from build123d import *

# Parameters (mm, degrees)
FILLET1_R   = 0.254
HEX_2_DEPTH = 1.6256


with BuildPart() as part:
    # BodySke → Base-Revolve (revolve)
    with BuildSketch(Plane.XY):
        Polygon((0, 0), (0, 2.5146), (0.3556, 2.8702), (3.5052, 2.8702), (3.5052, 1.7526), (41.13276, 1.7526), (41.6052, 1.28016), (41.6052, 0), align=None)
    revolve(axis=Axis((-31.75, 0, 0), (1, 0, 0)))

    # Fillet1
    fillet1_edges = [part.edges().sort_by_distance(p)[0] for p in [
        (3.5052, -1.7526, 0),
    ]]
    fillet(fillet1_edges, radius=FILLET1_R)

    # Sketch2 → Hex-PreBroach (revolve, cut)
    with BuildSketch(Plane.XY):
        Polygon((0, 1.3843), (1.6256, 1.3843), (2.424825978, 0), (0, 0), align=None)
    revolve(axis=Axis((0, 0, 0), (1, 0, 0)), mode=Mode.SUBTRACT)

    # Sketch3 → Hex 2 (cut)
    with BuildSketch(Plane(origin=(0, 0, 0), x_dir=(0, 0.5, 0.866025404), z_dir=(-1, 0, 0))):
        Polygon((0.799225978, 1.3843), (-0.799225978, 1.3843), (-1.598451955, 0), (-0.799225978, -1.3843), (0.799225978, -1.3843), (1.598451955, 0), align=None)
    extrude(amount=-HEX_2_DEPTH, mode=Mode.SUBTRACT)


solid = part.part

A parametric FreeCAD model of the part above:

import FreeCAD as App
import Part
import Sketcher

V = App.Vector
Q = App.Units.Quantity


def edges_at(feature, points):
    """Names of the edges that pass closest to the given points."""
    edges = feature.Shape.Edges
    near = lambda p: min(range(len(edges)), key=lambda i: edges[i].distToShape(Part.Vertex(*p))[0])
    return sorted({f"Edge{near(p) + 1}" for p in points})


def add_polygon(sketch, points):
    """Adds a closed chain of lines whose ends are joined by coincident constraints."""
    first, n = sketch.GeometryCount, len(points)
    for a, b in zip(points, points[1:] + points[:1]):
        sketch.addGeometry(Part.LineSegment(App.Vector(*a, 0), App.Vector(*b, 0)), False)
    for i in range(n):
        sketch.addConstraint(Sketcher.Constraint("Coincident", first + i, 2, first + (i + 1) % n, 1))

doc = App.newDocument("Part")
params = doc.addObject("Spreadsheet::Sheet", "Params")
for row, (alias, value) in enumerate([
    ("sketch1_width", "1.638 in"),
    ("sketch1_width2", "0.124 in"),
    ("sketch1_height", "0.099 in"),
    ("sketch1_height2", "0.044 in"),
    ("revolution_angle", "360 deg"),
    ("fillet_radius", "0.01 in"),
    ("sketch2_width", "0.064 in"),
    ("groove_angle", "360 deg"),
    ("pocket1_length", "0.064 in"),
], start=1):
    params.set(f"A{row}", alias)
    params.set(f"B{row}", "=" + value)
    params.setAlias(f"B{row}", alias)

body = doc.addObject("PartDesign::Body", "Body")

# Sketch on XY plane
sketch1 = body.newObject("Sketcher::SketchObject", "Sketch")
sketch1.AttachmentSupport = (doc.getObject("XY_Plane"), [""])
sketch1.MapMode = "FlatFace"
add_polygon(sketch1, [(0, 2.5), (0, 0), (41.6, 0), (41.6, 1.3), (41.1, 1.8), (3.5, 1.8), (3.5, 2.9), (0.4, 2.9)])  # lines 0-7
sketch1.addConstraint([
    Sketcher.Constraint("Vertical", 0),
    Sketcher.Constraint("Horizontal", 1),
    Sketcher.Constraint("Vertical", 2),
    Sketcher.Constraint("Horizontal", 4),
    Sketcher.Constraint("Vertical", 5),
    Sketcher.Constraint("Horizontal", 6),
    Sketcher.Constraint("Coincident", 0, 2, -1, 1),
    Sketcher.Constraint("Perpendicular", 3, 7),
    Sketcher.Constraint("Angle", 3, Q("135 deg")),
    Sketcher.Constraint("DistanceX", 4, 2, 2, 2, Q("1.5 in")),
    Sketcher.Constraint("DistanceX", 1, 1, 1, 2, Q("1.638 in")),
    Sketcher.Constraint("DistanceX", 6, 2, 6, 1, Q("0.124 in")),
    Sketcher.Constraint("DistanceY", 0, 2, 0, 1, Q("0.099 in")),
    Sketcher.Constraint("DistanceY", 5, 1, 5, 2, Q("0.044 in")),
    Sketcher.Constraint("DistanceX", 4, 2, 4, 1, Q("1.4814 in")),
])
sketch1.setExpression("Constraints[18]", "Params.sketch1_width")
sketch1.setExpression("Constraints[19]", "Params.sketch1_width2")
sketch1.setExpression("Constraints[20]", "Params.sketch1_height")
sketch1.setExpression("Constraints[21]", "Params.sketch1_height2")
revolution = body.newObject("PartDesign::Revolution", "Revolution")
revolution.Profile = sketch1
revolution.ReferenceAxis = (sketch1, ["H_Axis"])
revolution.setExpression("Angle", "Params.revolution_angle")
doc.recompute()

fillet = body.newObject("PartDesign::Fillet", "Fillet")
fillet.Base = (revolution, edges_at(revolution, [(3.505, -1.753, 0)]))
fillet.setExpression("Radius", "Params.fillet_radius")

# Sketch on XY plane
sketch2 = body.newObject("Sketcher::SketchObject", "Sketch001")
sketch2.AttachmentSupport = (doc.getObject("XY_Plane"), [""])
sketch2.MapMode = "FlatFace"
add_polygon(sketch2, [(1.6, 1.4), (0, 1.4), (0, 0), (2.4, 0)])  # lines 0-3
sketch2.addConstraint([
    Sketcher.Constraint("Horizontal", 0),
    Sketcher.Constraint("Vertical", 1),
    Sketcher.Constraint("Horizontal", 2),
    Sketcher.Constraint("Coincident", 1, 2, -1, 1),
    Sketcher.Constraint("Angle", 3, Q("120 deg")),
    Sketcher.Constraint("DistanceX", 0, 2, 0, 1, Q("0.064 in")),
    Sketcher.Constraint("DistanceY", 1, 2, 1, 1, Q("0.0545 in")),
])
sketch2.setExpression("Constraints[9]", "Params.sketch2_width")
groove = body.newObject("PartDesign::Groove", "Groove")
groove.Profile = sketch2
groove.ReferenceAxis = (sketch2, ["H_Axis"])
groove.setExpression("Angle", "Params.groove_angle")

# Sketch on YZ plane
sketch3 = body.newObject("Sketcher::SketchObject", "Sketch002")
sketch3.AttachmentSupport = (doc.getObject("YZ_Plane"), [""])
sketch3.MapMode = "FlatFace"
add_polygon(sketch3, [(1.6, 0), (0.8, -1.4), (-0.8, -1.4), (-1.6, 0), (-0.8, 1.4), (0.8, 1.4)])  # lines 0-5
sketch3.addConstraint([
    Sketcher.Constraint("Horizontal", 1),
    Sketcher.Constraint("Horizontal", 4),
    Sketcher.Constraint("Symmetric", 0, 2, 3, 2, -1, 1),
    Sketcher.Constraint("Symmetric", 2, 2, 5, 2, -1, 1),
    Sketcher.Constraint("PointOnObject", 2, 2, -1),
    Sketcher.Constraint("Parallel", 2, 5),
    Sketcher.Constraint("Vertical", 1, 2, 3, 2),
    Sketcher.Constraint("Angle", 0, Q("-120 deg")),
    Sketcher.Constraint("DistanceY", 1, 2, 3, 2, Q("0.109 in")),
    Sketcher.Constraint("DistanceX", 1, 2, 1, 1, 1.598452),
])
pocket1 = body.newObject("PartDesign::Pocket", "Pocket")
pocket1.Profile = sketch3
pocket1.setExpression("Length", "Params.pocket1_length")
pocket1.Reversed = True

doc.recompute()
